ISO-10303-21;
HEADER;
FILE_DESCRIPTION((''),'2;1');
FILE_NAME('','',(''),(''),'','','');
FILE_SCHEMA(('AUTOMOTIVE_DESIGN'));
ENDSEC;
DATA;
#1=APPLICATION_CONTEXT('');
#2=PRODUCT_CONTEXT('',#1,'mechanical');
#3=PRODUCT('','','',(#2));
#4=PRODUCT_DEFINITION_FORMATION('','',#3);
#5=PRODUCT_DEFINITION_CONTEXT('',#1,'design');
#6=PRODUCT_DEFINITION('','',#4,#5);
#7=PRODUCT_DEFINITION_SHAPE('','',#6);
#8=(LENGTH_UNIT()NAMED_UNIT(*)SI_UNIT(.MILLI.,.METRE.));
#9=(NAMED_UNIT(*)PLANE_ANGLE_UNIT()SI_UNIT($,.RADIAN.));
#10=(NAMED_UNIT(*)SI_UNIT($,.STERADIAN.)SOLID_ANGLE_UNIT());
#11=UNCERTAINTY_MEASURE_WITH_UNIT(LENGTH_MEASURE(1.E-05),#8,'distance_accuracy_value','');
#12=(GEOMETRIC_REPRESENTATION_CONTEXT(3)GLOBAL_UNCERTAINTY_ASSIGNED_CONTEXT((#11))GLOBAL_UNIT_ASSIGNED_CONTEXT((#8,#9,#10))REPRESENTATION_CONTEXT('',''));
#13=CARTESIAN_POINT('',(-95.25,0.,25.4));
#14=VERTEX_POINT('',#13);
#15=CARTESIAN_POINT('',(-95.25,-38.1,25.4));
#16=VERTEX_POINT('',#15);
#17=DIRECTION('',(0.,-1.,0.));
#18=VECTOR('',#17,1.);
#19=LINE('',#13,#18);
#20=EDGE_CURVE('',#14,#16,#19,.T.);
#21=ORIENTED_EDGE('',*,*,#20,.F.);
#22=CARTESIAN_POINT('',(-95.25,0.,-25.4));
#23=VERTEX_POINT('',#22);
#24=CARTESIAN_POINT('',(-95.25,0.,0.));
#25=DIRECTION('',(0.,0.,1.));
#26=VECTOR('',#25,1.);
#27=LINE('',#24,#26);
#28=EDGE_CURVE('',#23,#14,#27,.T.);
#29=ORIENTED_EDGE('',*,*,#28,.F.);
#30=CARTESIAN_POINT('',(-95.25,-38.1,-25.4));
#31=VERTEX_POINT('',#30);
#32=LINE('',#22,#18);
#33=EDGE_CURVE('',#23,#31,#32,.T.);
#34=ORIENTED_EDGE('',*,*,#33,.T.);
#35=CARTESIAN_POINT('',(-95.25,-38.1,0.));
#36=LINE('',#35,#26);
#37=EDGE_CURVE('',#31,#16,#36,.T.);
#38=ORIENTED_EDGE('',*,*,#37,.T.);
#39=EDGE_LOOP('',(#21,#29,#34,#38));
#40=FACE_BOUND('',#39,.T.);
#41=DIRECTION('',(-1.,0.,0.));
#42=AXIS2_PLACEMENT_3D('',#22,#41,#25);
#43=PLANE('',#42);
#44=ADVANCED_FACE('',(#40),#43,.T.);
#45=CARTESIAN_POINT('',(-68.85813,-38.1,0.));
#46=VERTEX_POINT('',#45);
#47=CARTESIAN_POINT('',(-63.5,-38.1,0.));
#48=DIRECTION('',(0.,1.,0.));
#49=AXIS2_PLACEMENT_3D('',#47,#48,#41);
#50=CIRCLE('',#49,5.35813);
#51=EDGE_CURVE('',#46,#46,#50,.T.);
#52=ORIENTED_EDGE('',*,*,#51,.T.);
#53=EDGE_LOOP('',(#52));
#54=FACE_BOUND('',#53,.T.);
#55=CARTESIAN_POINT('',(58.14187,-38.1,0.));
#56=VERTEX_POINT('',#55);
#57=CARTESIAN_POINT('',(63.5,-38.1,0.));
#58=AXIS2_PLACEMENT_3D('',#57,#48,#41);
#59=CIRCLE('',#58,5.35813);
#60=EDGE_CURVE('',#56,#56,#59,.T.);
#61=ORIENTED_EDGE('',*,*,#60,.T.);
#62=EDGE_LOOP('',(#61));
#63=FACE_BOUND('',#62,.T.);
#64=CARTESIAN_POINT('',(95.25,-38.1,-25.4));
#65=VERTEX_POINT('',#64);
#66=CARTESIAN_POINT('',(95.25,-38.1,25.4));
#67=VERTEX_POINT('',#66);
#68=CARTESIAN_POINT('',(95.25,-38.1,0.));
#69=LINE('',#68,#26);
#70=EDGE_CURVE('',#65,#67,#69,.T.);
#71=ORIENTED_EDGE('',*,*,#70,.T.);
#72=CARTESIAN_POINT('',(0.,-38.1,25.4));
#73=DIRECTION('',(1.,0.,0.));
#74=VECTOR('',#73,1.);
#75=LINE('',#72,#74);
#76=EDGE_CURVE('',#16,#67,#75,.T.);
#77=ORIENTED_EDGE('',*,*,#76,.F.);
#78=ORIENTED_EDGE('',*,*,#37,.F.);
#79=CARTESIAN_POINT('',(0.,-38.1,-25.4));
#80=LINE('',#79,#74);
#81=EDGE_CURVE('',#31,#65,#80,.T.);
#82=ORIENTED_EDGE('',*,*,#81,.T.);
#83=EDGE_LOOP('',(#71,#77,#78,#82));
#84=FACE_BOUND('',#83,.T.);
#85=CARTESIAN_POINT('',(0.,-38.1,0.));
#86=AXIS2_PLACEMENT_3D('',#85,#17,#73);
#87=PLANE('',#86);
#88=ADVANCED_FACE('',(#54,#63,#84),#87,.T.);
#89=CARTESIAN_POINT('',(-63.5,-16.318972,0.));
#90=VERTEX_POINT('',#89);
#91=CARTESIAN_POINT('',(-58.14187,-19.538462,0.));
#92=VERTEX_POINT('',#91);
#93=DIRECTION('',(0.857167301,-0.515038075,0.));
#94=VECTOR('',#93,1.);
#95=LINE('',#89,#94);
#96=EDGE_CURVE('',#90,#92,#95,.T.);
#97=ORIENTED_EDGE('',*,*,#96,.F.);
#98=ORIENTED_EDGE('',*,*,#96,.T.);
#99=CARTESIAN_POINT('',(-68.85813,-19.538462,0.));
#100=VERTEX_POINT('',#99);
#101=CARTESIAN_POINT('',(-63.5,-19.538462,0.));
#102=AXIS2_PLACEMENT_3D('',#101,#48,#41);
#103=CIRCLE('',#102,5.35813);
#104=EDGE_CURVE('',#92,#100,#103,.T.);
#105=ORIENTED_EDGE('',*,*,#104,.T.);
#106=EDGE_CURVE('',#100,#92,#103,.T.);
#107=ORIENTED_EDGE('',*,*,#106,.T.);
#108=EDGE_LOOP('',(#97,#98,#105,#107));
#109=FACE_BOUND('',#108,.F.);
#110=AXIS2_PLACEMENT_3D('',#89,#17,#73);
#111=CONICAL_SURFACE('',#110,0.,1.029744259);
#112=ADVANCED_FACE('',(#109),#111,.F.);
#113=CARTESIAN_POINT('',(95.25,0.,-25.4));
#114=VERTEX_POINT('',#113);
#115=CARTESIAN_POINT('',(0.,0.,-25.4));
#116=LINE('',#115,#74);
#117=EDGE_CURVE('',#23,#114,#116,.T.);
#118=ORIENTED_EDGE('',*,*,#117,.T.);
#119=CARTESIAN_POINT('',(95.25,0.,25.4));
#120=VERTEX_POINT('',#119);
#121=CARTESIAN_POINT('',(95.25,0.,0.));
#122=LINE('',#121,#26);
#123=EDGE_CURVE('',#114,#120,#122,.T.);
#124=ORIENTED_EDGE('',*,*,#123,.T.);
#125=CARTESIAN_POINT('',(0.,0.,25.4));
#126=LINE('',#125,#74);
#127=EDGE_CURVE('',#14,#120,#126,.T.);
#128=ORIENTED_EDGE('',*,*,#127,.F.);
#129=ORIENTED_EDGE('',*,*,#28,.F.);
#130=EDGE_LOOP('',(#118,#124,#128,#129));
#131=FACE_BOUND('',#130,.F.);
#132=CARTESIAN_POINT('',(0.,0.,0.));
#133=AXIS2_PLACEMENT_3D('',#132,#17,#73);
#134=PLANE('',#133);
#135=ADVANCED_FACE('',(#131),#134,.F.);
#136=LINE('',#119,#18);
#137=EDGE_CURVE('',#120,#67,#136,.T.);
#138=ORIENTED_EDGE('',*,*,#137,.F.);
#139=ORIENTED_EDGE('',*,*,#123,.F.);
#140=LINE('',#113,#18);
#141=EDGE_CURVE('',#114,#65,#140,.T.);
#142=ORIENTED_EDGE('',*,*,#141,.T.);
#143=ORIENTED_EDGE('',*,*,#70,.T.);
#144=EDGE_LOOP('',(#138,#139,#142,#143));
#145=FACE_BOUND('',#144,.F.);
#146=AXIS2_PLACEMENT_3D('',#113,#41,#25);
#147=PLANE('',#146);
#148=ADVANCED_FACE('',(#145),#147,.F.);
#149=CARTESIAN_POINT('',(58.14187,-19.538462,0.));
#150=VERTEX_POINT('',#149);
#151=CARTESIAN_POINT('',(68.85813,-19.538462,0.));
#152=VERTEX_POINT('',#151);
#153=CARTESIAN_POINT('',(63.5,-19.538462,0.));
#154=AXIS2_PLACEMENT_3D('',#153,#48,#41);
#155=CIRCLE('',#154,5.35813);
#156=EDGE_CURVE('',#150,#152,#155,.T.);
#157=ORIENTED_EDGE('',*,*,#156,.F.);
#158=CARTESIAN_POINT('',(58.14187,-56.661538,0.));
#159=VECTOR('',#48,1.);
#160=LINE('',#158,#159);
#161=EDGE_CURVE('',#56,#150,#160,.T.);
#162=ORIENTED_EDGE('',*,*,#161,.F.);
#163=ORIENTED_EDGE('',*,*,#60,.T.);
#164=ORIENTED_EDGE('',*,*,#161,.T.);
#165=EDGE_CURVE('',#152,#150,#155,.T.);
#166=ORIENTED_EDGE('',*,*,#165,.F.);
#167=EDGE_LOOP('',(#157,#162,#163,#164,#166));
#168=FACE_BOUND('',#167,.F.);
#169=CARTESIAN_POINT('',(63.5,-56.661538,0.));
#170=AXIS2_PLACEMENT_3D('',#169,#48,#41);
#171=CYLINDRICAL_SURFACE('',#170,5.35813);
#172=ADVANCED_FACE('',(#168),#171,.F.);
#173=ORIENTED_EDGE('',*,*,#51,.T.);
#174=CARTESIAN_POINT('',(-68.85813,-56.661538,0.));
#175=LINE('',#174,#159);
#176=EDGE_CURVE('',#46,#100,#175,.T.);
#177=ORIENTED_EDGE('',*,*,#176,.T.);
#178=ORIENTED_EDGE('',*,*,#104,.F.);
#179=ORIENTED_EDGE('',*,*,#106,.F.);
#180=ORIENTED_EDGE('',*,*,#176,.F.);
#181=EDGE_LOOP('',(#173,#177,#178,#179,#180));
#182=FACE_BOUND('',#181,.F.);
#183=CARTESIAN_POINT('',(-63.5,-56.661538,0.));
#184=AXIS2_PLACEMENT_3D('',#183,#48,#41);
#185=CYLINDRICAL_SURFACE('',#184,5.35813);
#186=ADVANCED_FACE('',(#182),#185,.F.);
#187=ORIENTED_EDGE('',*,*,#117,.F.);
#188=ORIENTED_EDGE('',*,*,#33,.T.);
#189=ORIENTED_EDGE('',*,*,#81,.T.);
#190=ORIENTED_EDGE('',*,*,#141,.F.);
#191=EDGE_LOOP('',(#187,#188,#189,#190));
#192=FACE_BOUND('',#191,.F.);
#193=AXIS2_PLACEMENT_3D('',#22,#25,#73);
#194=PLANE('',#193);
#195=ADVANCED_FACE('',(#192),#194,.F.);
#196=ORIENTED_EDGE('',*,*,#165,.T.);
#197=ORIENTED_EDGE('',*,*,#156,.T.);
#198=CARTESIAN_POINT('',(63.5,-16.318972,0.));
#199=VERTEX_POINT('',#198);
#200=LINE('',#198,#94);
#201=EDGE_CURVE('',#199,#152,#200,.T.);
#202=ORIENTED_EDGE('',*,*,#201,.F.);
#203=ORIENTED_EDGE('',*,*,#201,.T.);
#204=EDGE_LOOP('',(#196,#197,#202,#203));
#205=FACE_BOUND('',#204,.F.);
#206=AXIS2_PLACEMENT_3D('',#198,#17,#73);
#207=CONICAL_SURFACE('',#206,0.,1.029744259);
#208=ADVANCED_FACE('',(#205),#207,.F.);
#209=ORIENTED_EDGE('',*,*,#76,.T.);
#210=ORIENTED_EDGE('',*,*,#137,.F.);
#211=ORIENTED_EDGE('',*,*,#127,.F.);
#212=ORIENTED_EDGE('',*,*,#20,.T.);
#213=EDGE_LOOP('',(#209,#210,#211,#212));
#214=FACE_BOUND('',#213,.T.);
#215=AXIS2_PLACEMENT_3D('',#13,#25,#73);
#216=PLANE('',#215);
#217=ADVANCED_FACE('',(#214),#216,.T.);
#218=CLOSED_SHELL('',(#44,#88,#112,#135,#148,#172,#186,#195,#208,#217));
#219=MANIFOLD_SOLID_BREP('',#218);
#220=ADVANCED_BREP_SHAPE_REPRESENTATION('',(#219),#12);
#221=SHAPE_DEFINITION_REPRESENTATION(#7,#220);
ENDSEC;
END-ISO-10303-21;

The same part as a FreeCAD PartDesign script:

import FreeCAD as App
import Part
import Sketcher
Q = App.Units.Quantity


def add_polygon(sketch, points):
    """Adds a closed chain of lines whose ends are joined by coincident constraints."""
    first, n = sketch.GeometryCount, len(points)
    for a, b in zip(points, points[1:] + points[:1]):
        sketch.addGeometry(Part.LineSegment(App.Vector(*a, 0), App.Vector(*b, 0)), False)
    for i in range(n):
        sketch.addConstraint(Sketcher.Constraint("Coincident", first + i, 2, first + (i + 1) % n, 1))

doc = App.newDocument("Part")
body = doc.addObject("PartDesign::Body", "Body")

sketch1 = doc.addObject("Sketcher::SketchObject", "Sketch")
body.addObject(sketch1)
sketch1.AttachmentSupport = (doc.XZ_Plane, [""])
sketch1.MapMode = "FlatFace"
add_polygon(sketch1, [(-95.25, 25.4), (-95.25, -25.4), (95.25, -25.4), (95.25, 25.4)])
sketch1.addConstraint([
    Sketcher.Constraint("Vertical", 0),
    Sketcher.Constraint("Horizontal", 1),
    Sketcher.Constraint("Vertical", 2),
    Sketcher.Constraint("Horizontal", 3),
    Sketcher.Constraint("Symmetric", 0, 2, 2, 2, -1, 1),
    Sketcher.Constraint("DistanceY", 0, 2, 0, 1, Q("2 in")),
    Sketcher.Constraint("DistanceX", 1, 1, 1, 2, Q("7.5 in")),
])
pad1 = doc.addObject("PartDesign::Pad", "Pad")
body.addObject(pad1)
pad1.Profile = sketch1
pad1.Length = Q("1.5 in")

sketch2 = doc.addObject("Sketcher::SketchObject", "Sketch001")
body.addObject(sketch2)
sketch2.AttachmentSupport = (doc.XZ_Plane, [""])
sketch2.MapMode = "FlatFace"
sketch2.AttachmentOffset = App.Placement(App.Vector(0, 0, 1.5 * 25.4), App.Rotation())
sketch2.addGeometry([
    Part.Circle(App.Vector(-63.5, 0, 0), App.Vector(0, 0, 1), 5.35813),
    Part.Circle(App.Vector(63.5, 0, 0), App.Vector(0, 0, 1), 5.35813),
], False)
sketch2.addConstraint([
    Sketcher.Constraint("Equal", 0, 1),
    Sketcher.Constraint("Symmetric", 0, 3, 1, 3, -1, 1),
    Sketcher.Constraint("PointOnObject", 0, 3, -1),
    Sketcher.Constraint("DistanceX", 0, 3, 1, 3, Q("5 in")),
    Sketcher.Constraint("Diameter", 0, Q("0.4219 in")),
])
doc.recompute()
hole = doc.addObject("PartDesign::Hole", "Hole")
body.addObject(hole)
hole.Profile = sketch2
hole.ThreadType = "None"
hole.Diameter = Q("0.4219 in")
hole.DepthType = "Dimension"
hole.Depth = 18.561538
hole.DrillPoint = "Angled"
hole.DrillPointAngle = 118

doc.recompute()
